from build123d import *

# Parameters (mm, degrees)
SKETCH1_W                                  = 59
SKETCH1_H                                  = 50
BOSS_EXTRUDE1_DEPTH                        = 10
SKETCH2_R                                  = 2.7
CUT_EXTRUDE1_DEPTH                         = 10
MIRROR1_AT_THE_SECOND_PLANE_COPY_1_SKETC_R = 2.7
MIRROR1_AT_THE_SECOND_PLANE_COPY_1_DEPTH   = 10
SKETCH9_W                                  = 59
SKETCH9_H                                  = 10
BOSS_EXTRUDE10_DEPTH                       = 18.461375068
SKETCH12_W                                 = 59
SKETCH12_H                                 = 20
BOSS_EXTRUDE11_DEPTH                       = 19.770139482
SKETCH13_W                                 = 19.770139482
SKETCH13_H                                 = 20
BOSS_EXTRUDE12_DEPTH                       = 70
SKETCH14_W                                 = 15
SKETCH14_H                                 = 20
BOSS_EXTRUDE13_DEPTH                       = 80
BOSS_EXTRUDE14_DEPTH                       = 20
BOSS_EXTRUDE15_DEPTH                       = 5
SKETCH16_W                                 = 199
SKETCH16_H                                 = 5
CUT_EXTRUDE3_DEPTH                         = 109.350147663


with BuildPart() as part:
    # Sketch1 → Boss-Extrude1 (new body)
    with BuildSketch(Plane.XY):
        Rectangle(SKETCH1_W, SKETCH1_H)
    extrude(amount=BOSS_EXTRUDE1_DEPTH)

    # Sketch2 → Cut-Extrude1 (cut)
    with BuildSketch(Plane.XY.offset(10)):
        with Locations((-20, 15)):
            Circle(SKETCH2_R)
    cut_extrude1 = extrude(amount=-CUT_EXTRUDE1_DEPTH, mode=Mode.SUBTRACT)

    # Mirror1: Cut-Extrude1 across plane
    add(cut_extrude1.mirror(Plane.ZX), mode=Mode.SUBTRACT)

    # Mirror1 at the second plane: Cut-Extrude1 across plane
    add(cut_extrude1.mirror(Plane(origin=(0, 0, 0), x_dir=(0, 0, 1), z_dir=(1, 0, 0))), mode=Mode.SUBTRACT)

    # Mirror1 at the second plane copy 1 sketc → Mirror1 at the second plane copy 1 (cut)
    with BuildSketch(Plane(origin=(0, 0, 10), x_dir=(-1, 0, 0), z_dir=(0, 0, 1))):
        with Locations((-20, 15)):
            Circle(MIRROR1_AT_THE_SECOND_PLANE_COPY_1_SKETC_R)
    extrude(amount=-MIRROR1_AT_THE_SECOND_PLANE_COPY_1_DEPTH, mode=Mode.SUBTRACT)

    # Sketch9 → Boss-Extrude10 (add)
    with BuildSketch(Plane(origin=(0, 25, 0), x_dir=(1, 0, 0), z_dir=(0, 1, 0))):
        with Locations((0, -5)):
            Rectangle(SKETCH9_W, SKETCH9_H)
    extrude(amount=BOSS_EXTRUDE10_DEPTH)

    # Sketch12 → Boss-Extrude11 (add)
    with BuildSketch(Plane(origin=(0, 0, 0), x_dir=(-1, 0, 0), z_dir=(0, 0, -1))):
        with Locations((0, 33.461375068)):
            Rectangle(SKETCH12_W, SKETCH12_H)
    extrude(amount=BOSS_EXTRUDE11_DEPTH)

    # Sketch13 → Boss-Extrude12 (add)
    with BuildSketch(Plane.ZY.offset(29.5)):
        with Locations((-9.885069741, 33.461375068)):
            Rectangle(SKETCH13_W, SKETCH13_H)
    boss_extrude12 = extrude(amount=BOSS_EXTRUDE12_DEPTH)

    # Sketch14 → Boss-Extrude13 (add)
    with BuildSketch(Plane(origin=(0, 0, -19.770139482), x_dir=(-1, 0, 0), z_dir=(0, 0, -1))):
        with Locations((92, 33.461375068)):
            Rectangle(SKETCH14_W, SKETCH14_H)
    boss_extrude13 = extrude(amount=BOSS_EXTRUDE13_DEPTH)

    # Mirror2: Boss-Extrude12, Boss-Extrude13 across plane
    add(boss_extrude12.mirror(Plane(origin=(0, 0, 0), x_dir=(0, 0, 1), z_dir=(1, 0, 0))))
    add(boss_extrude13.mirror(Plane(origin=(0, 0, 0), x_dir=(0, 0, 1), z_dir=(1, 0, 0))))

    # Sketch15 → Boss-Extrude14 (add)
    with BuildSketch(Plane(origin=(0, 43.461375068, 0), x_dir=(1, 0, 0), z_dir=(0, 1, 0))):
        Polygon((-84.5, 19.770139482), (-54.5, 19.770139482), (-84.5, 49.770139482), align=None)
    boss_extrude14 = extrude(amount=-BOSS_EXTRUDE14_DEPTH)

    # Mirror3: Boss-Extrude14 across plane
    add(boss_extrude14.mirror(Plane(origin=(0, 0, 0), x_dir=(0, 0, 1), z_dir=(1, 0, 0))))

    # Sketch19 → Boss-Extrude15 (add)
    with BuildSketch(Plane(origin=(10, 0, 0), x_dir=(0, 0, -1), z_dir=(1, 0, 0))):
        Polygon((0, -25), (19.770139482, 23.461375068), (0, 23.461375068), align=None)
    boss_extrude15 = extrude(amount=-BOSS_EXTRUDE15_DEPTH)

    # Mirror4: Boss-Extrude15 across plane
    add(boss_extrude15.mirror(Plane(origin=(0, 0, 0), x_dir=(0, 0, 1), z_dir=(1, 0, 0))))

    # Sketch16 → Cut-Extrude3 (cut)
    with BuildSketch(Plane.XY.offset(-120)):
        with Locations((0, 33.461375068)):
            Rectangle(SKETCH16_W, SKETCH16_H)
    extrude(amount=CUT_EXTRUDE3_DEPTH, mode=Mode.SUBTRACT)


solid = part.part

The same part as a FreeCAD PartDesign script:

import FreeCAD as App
import Part
import Sketcher

V = App.Vector

doc = App.newDocument("Part")
body = doc.addObject("PartDesign::Body", "Body")

# Sketch on XY plane
sketch1 = body.newObject("Sketcher::SketchObject", "Sketch")
sketch1.AttachmentSupport = (doc.getObject("XY_Plane"), [""])
sketch1.MapMode = "FlatFace"
sketch1.addGeometry(Part.LineSegment(V(-30, 25, 0), V(-30, -25, 0)), False)
sketch1.addGeometry(Part.LineSegment(V(-30, -25, 0), V(30, -25, 0)), False)
sketch1.addGeometry(Part.LineSegment(V(30, -25, 0), V(30, 25, 0)), False)
sketch1.addGeometry(Part.LineSegment(V(30, 25, 0), V(-30, 25, 0)), False)
sketch1.addConstraint(Sketcher.Constraint("Coincident", 0, 2, 1, 1))
sketch1.addConstraint(Sketcher.Constraint("Coincident", 1, 2, 2, 1))
sketch1.addConstraint(Sketcher.Constraint("Coincident", 2, 2, 3, 1))
sketch1.addConstraint(Sketcher.Constraint("Coincident", 3, 2, 0, 1))
sketch1.addConstraint(Sketcher.Constraint("Vertical", 0))
sketch1.addConstraint(Sketcher.Constraint("Horizontal", 1))
sketch1.addConstraint(Sketcher.Constraint("Vertical", 2))
sketch1.addConstraint(Sketcher.Constraint("Horizontal", 3))
sketch1.addConstraint(Sketcher.Constraint("Symmetric", 0, 2, 2, 2, -1, 1))
sketch1.addConstraint(Sketcher.Constraint("DistanceX", 1, 1, 1, 2, 59.0))
sketch1.addConstraint(Sketcher.Constraint("DistanceY", 0, 2, 0, 1, 50.0))
pad1 = body.newObject("PartDesign::Pad", "Pad")
pad1.Profile = sketch1
pad1.Length = 10

# Sketch on XY plane
sketch2 = body.newObject("Sketcher::SketchObject", "Sketch001")
sketch2.AttachmentSupport = (doc.getObject("XY_Plane"), [""])
sketch2.MapMode = "FlatFace"
sketch2.AttachmentOffset = App.Placement(V(0, 0, 10), App.Rotation())
sketch2.addGeometry(Part.Circle(V(-20, 15, 0), V(0, 0, 1), 2.7), False)
sketch2.addConstraint(Sketcher.Constraint("Diameter", 0, 5.4))
sketch2.addConstraint(Sketcher.Constraint("DistanceX", 0, 3, -1, 1, 20.0))
sketch2.addConstraint(Sketcher.Constraint("DistanceY", -1, 1, 0, 3, 15.0))
pocket1 = body.newObject("PartDesign::Pocket", "Pocket")
pocket1.Profile = sketch2
pocket1.Length = 10
doc.recompute()

mirrored = body.newObject("PartDesign::Mirrored", "Mirrored")
mirrored.Originals = [pocket1]
mirrored.MirrorPlane = (doc.getObject("XZ_Plane"), [""])
body.Tip = mirrored
doc.recompute()

mirrored2 = body.newObject("PartDesign::Mirrored", "Mirrored001")
mirrored2.Originals = [pocket1]
mirrored2.MirrorPlane = (doc.getObject("YZ_Plane"), [""])
body.Tip = mirrored2

# Sketch on XY plane
sketch3 = body.newObject("Sketcher::SketchObject", "Sketch002")
sketch3.AttachmentSupport = (doc.getObject("XY_Plane"), [""])
sketch3.MapMode = "FlatFace"
sketch3.AttachmentOffset = App.Placement(V(0, 0, 10), App.Rotation())
sketch3.addGeometry(Part.Circle(V(20, -15, 0), V(0, 0, 1), 2.7), False)
sketch3.addConstraint(Sketcher.Constraint("Diameter", 0, 5.4))
sketch3.addConstraint(Sketcher.Constraint("DistanceX", -1, 1, 0, 3, 20.0))
sketch3.addConstraint(Sketcher.Constraint("DistanceY", 0, 3, -1, 1, 15.0))
pocket2 = body.newObject("PartDesign::Pocket", "Pocket001")
pocket2.Profile = sketch3
pocket2.Length = 10

# Sketch on XZ plane
sketch4 = body.newObject("Sketcher::SketchObject", "Sketch003")
sketch4.AttachmentSupport = (doc.getObject("XZ_Plane"), [""])
sketch4.MapMode = "FlatFace"
sketch4.AttachmentOffset = App.Placement(V(0, 0, -25), App.Rotation())
sketch4.addGeometry(Part.LineSegment(V(-30, 0, 0), V(-30, 10, 0)), False)
sketch4.addGeometry(Part.LineSegment(V(-30, 10, 0), V(30, 10, 0)), False)
sketch4.addGeometry(Part.LineSegment(V(30, 10, 0), V(30, 0, 0)), False)
sketch4.addGeometry(Part.LineSegment(V(30, 0, 0), V(-30, 0, 0)), False)
sketch4.addConstraint(Sketcher.Constraint("Coincident", 0, 2, 1, 1))
sketch4.addConstraint(Sketcher.Constraint("Coincident", 1, 2, 2, 1))
sketch4.addConstraint(Sketcher.Constraint("Coincident", 2, 2, 3, 1))
sketch4.addConstraint(Sketcher.Constraint("Coincident", 3, 2, 0, 1))
sketch4.addConstraint(Sketcher.Constraint("Vertical", 0))
sketch4.addConstraint(Sketcher.Constraint("Horizontal", 1))
sketch4.addConstraint(Sketcher.Constraint("Vertical", 2))
sketch4.addConstraint(Sketcher.Constraint("Horizontal", 3))
sketch4.addConstraint(Sketcher.Constraint("Symmetric", 2, 2, 3, 2, -1, 1))
sketch4.addConstraint(Sketcher.Constraint("DistanceX", 1, 1, 1, 2, 59.0))
sketch4.addConstraint(Sketcher.Constraint("DistanceY", 0, 1, 0, 2, 10.0))
pad2 = body.newObject("PartDesign::Pad", "Pad001")
pad2.Profile = sketch4
pad2.Length = 18.461375
pad2.Reversed = True

# Sketch on XY plane
sketch5 = body.newObject("Sketcher::SketchObject", "Sketch004")
sketch5.AttachmentSupport = (doc.getObject("XY_Plane"), [""])
sketch5.MapMode = "FlatFace"
sketch5.addGeometry(Part.LineSegment(V(30, 43, 0), V(30, 23, 0)), False)
sketch5.addGeometry(Part.LineSegment(V(30, 23, 0), V(-30, 23, 0)), False)
sketch5.addGeometry(Part.LineSegment(V(-30, 23, 0), V(-30, 43, 0)), False)
sketch5.addGeometry(Part.LineSegment(V(-30, 43, 0), V(30, 43, 0)), False)
sketch5.addConstraint(Sketcher.Constraint("Coincident", 0, 2, 1, 1))
sketch5.addConstraint(Sketcher.Constraint("Coincident", 1, 2, 2, 1))
sketch5.addConstraint(Sketcher.Constraint("Coincident", 2, 2, 3, 1))
sketch5.addConstraint(Sketcher.Constraint("Coincident", 3, 2, 0, 1))
sketch5.addConstraint(Sketcher.Constraint("Vertical", 0))
sketch5.addConstraint(Sketcher.Constraint("Horizontal", 1))
sketch5.addConstraint(Sketcher.Constraint("Vertical", 2))
sketch5.addConstraint(Sketcher.Constraint("Horizontal", 3))
sketch5.addConstraint(Sketcher.Constraint("DistanceX", 1, 2, 1, 1, 59.0))
sketch5.addConstraint(Sketcher.Constraint("DistanceY", 0, 2, 0, 1, 20.0))
sketch5.addConstraint(Sketcher.Constraint("DistanceX", -1, 1, 0, 2, 29.5))
sketch5.addConstraint(Sketcher.Constraint("DistanceY", -1, 1, 0, 2, 23.461375))
pad3 = body.newObject("PartDesign::Pad", "Pad002")
pad3.Profile = sketch5
pad3.Length = 19.770139
pad3.Reversed = True

# Sketch on YZ plane
sketch6 = body.newObject("Sketcher::SketchObject", "Sketch005")
sketch6.AttachmentSupport = (doc.getObject("YZ_Plane"), [""])
sketch6.MapMode = "FlatFace"
sketch6.AttachmentOffset = App.Placement(V(0, 0, -29.5), App.Rotation())
sketch6.addGeometry(Part.LineSegment(V(43, -20, 0), V(23, -20, 0)), False)
sketch6.addGeometry(Part.LineSegment(V(23, -20, 0), V(23, 0, 0)), False)
sketch6.addGeometry(Part.LineSegment(V(23, 0, 0), V(43, 0, 0)), False)
sketch6.addGeometry(Part.LineSegment(V(43, 0, 0), V(43, -20, 0)), False)
sketch6.addConstraint(Sketcher.Constraint("Coincident", 0, 2, 1, 1))
sketch6.addConstraint(Sketcher.Constraint("Coincident", 1, 2, 2, 1))
sketch6.addConstraint(Sketcher.Constraint("Coincident", 2, 2, 3, 1))
sketch6.addConstraint(Sketcher.Constraint("Coincident", 3, 2, 0, 1))
sketch6.addConstraint(Sketcher.Constraint("Horizontal", 0))
sketch6.addConstraint(Sketcher.Constraint("Vertical", 1))
sketch6.addConstraint(Sketcher.Constraint("Horizontal", 2))
sketch6.addConstraint(Sketcher.Constraint("Vertical", 3))
sketch6.addConstraint(Sketcher.Constraint("PointOnObject", 1, 2, -1))
sketch6.addConstraint(Sketcher.Constraint("DistanceX", 0, 2, 0, 1, 20.0))
sketch6.addConstraint(Sketcher.Constraint("DistanceY", 1, 1, 1, 2, 19.770139))
sketch6.addConstraint(Sketcher.Constraint("DistanceX", -1, 1, 0, 2, 23.461375))
pad4 = body.newObject("PartDesign::Pad", "Pad003")
pad4.Profile = sketch6
pad4.Length = 70
pad4.Reversed = True

# Sketch on XY plane
sketch7 = body.newObject("Sketcher::SketchObject", "Sketch006")
sketch7.AttachmentSupport = (doc.getObject("XY_Plane"), [""])
sketch7.MapMode = "FlatFace"
sketch7.AttachmentOffset = App.Placement(V(0, 0, -19.770139), App.Rotation())
sketch7.addGeometry(Part.LineSegment(V(-84, 43, 0), V(-84, 23, 0)), False)
sketch7.addGeometry(Part.LineSegment(V(-84, 23, 0), V(-100, 23, 0)), False)
sketch7.addGeometry(Part.LineSegment(V(-100, 23, 0), V(-100, 43, 0)), False)
sketch7.addGeometry(Part.LineSegment(V(-100, 43, 0), V(-84, 43, 0)), False)
sketch7.addConstraint(Sketcher.Constraint("Coincident", 0, 2, 1, 1))
sketch7.addConstraint(Sketcher.Constraint("Coincident", 1, 2, 2, 1))
sketch7.addConstraint(Sketcher.Constraint("Coincident", 2, 2, 3, 1))
sketch7.addConstraint(Sketcher.Constraint("Coincident", 3, 2, 0, 1))
sketch7.addConstraint(Sketcher.Constraint("Vertical", 0))
sketch7.addConstraint(Sketcher.Constraint("Horizontal", 1))
sketch7.addConstraint(Sketcher.Constraint("Vertical", 2))
sketch7.addConstraint(Sketcher.Constraint("Horizontal", 3))
sketch7.addConstraint(Sketcher.Constraint("DistanceX", 1, 2, 1, 1, 15.0))
sketch7.addConstraint(Sketcher.Constraint("DistanceY", 0, 2, 0, 1, 20.0))
sketch7.addConstraint(Sketcher.Constraint("DistanceX", 0, 2, -1, 1, 84.5))
sketch7.addConstraint(Sketcher.Constraint("DistanceY", -1, 1, 0, 2, 23.461375))
pad5 = body.newObject("PartDesign::Pad", "Pad004")
pad5.Profile = sketch7
pad5.Length = 80
pad5.Reversed = True
doc.recompute()

mirrored3 = body.newObject("PartDesign::Mirrored", "Mirrored002")
mirrored3.Originals = [pad4, pad5]
mirrored3.MirrorPlane = (doc.getObject("YZ_Plane"), [""])
body.Tip = mirrored3

# Sketch on XZ plane
sketch8 = body.newObject("Sketcher::SketchObject", "Sketch007")
sketch8.AttachmentSupport = (doc.getObject("XZ_Plane"), [""])
sketch8.MapMode = "FlatFace"
sketch8.AttachmentOffset = App.Placement(V(0, 0, -43.461375), App.Rotation())
sketch8.addGeometry(Part.LineSegment(V(-84, -20, 0), V(-54, -20, 0)), False)
sketch8.addGeometry(Part.LineSegment(V(-54, -20, 0), V(-84, -50, 0)), False)
sketch8.addGeometry(Part.LineSegment(V(-84, -50, 0), V(-84, -20, 0)), False)
sketch8.addConstraint(Sketcher.Constraint("Coincident", 0, 2, 1, 1))
sketch8.addConstraint(Sketcher.Constraint("Coincident", 1, 2, 2, 1))
sketch8.addConstraint(Sketcher.Constraint("Coincident", 2, 2, 0, 1))
sketch8.addConstraint(Sketcher.Constraint("Horizontal", 0))
sketch8.addConstraint(Sketcher.Constraint("Vertical", 2))
sketch8.addConstraint(Sketcher.Constraint("Equal", 0, 2))
sketch8.addConstraint(Sketcher.Constraint("DistanceX", 0, 1, 0, 2, 30.0))
sketch8.addConstraint(Sketcher.Constraint("DistanceX", 0, 2, -1, 1, 54.5))
sketch8.addConstraint(Sketcher.Constraint("DistanceY", 0, 2, -1, 1, 19.770139))
pad6 = body.newObject("PartDesign::Pad", "Pad005")
pad6.Profile = sketch8
pad6.Length = 20
doc.recompute()

mirrored4 = body.newObject("PartDesign::Mirrored", "Mirrored003")
mirrored4.Originals = [pad6]
mirrored4.MirrorPlane = (doc.getObject("YZ_Plane"), [""])
body.Tip = mirrored4

# Sketch on YZ plane
sketch9 = body.newObject("Sketcher::SketchObject", "Sketch008")
sketch9.AttachmentSupport = (doc.getObject("YZ_Plane"), [""])
sketch9.MapMode = "FlatFace"
sketch9.AttachmentOffset = App.Placement(V(0, 0, 10), App.Rotation())
sketch9.addGeometry(Part.LineSegment(V(-25, 0, 0), V(23, -20, 0)), False)
sketch9.addGeometry(Part.LineSegment(V(23, -20, 0), V(23, 0, 0)), False)
sketch9.addGeometry(Part.LineSegment(V(23, 0, 0), V(-25, 0, 0)), False)
sketch9.addConstraint(Sketcher.Constraint("Coincident", 0, 2, 1, 1))
sketch9.addConstraint(Sketcher.Constraint("Coincident", 1, 2, 2, 1))
sketch9.addConstraint(Sketcher.Constraint("Coincident", 2, 2, 0, 1))
sketch9.addConstraint(Sketcher.Constraint("Vertical", 1))
sketch9.addConstraint(Sketcher.Constraint("Horizontal", 2))
sketch9.addConstraint(Sketcher.Constraint("PointOnObject", 1, 2, -1))
sketch9.addConstraint(Sketcher.Constraint("DistanceX", 2, 2, -1, 1, 25.0))
sketch9.addConstraint(Sketcher.Constraint("DistanceY", 1, 1, 1, 2, 19.770139))
sketch9.addConstraint(Sketcher.Constraint("DistanceX", 2, 2, 2, 1, 48.461375))
pad7 = body.newObject("PartDesign::Pad", "Pad006")
pad7.Profile = sketch9
pad7.Length = 5
pad7.Reversed = True
doc.recompute()

mirrored5 = body.newObject("PartDesign::Mirrored", "Mirrored004")
mirrored5.Originals = [pad7]
mirrored5.MirrorPlane = (doc.getObject("YZ_Plane"), [""])
body.Tip = mirrored5

# Sketch on XY plane
sketch10 = body.newObject("Sketcher::SketchObject", "Sketch009")
sketch10.AttachmentSupport = (doc.getObject("XY_Plane"), [""])
sketch10.MapMode = "FlatFace"
sketch10.AttachmentOffset = App.Placement(V(0, 0, -120), App.Rotation())
sketch10.addGeometry(Part.LineSegment(V(-100, 36, 0), V(-100, 31, 0)), False)
sketch10.addGeometry(Part.LineSegment(V(-100, 31, 0), V(100, 31, 0)), False)
sketch10.addGeometry(Part.LineSegment(V(100, 31, 0), V(100, 36, 0)), False)
sketch10.addGeometry(Part.LineSegment(V(100, 36, 0), V(-100, 36, 0)), False)
sketch10.addConstraint(Sketcher.Constraint("Coincident", 0, 2, 1, 1))
sketch10.addConstraint(Sketcher.Constraint("Coincident", 1, 2, 2, 1))
sketch10.addConstraint(Sketcher.Constraint("Coincident", 2, 2, 3, 1))
sketch10.addConstraint(Sketcher.Constraint("Coincident", 3, 2, 0, 1))
sketch10.addConstraint(Sketcher.Constraint("Vertical", 0))
sketch10.addConstraint(Sketcher.Constraint("Horizontal", 1))
sketch10.addConstraint(Sketcher.Constraint("Vertical", 2))
sketch10.addConstraint(Sketcher.Constraint("Horizontal", 3))
sketch10.addConstraint(Sketcher.Constraint("DistanceX", 1, 1, 1, 2, 199.0))
sketch10.addConstraint(Sketcher.Constraint("DistanceY", 0, 2, 0, 1, 5.0))
sketch10.addConstraint(Sketcher.Constraint("DistanceX", 0, 2, -1, 1, 99.5))
sketch10.addConstraint(Sketcher.Constraint("DistanceY", -1, 1, 0, 2, 30.961375))
pocket3 = body.newObject("PartDesign::Pocket", "Pocket002")
pocket3.Profile = sketch10
pocket3.Length = 109.350148
pocket3.Reversed = True

doc.recompute()
